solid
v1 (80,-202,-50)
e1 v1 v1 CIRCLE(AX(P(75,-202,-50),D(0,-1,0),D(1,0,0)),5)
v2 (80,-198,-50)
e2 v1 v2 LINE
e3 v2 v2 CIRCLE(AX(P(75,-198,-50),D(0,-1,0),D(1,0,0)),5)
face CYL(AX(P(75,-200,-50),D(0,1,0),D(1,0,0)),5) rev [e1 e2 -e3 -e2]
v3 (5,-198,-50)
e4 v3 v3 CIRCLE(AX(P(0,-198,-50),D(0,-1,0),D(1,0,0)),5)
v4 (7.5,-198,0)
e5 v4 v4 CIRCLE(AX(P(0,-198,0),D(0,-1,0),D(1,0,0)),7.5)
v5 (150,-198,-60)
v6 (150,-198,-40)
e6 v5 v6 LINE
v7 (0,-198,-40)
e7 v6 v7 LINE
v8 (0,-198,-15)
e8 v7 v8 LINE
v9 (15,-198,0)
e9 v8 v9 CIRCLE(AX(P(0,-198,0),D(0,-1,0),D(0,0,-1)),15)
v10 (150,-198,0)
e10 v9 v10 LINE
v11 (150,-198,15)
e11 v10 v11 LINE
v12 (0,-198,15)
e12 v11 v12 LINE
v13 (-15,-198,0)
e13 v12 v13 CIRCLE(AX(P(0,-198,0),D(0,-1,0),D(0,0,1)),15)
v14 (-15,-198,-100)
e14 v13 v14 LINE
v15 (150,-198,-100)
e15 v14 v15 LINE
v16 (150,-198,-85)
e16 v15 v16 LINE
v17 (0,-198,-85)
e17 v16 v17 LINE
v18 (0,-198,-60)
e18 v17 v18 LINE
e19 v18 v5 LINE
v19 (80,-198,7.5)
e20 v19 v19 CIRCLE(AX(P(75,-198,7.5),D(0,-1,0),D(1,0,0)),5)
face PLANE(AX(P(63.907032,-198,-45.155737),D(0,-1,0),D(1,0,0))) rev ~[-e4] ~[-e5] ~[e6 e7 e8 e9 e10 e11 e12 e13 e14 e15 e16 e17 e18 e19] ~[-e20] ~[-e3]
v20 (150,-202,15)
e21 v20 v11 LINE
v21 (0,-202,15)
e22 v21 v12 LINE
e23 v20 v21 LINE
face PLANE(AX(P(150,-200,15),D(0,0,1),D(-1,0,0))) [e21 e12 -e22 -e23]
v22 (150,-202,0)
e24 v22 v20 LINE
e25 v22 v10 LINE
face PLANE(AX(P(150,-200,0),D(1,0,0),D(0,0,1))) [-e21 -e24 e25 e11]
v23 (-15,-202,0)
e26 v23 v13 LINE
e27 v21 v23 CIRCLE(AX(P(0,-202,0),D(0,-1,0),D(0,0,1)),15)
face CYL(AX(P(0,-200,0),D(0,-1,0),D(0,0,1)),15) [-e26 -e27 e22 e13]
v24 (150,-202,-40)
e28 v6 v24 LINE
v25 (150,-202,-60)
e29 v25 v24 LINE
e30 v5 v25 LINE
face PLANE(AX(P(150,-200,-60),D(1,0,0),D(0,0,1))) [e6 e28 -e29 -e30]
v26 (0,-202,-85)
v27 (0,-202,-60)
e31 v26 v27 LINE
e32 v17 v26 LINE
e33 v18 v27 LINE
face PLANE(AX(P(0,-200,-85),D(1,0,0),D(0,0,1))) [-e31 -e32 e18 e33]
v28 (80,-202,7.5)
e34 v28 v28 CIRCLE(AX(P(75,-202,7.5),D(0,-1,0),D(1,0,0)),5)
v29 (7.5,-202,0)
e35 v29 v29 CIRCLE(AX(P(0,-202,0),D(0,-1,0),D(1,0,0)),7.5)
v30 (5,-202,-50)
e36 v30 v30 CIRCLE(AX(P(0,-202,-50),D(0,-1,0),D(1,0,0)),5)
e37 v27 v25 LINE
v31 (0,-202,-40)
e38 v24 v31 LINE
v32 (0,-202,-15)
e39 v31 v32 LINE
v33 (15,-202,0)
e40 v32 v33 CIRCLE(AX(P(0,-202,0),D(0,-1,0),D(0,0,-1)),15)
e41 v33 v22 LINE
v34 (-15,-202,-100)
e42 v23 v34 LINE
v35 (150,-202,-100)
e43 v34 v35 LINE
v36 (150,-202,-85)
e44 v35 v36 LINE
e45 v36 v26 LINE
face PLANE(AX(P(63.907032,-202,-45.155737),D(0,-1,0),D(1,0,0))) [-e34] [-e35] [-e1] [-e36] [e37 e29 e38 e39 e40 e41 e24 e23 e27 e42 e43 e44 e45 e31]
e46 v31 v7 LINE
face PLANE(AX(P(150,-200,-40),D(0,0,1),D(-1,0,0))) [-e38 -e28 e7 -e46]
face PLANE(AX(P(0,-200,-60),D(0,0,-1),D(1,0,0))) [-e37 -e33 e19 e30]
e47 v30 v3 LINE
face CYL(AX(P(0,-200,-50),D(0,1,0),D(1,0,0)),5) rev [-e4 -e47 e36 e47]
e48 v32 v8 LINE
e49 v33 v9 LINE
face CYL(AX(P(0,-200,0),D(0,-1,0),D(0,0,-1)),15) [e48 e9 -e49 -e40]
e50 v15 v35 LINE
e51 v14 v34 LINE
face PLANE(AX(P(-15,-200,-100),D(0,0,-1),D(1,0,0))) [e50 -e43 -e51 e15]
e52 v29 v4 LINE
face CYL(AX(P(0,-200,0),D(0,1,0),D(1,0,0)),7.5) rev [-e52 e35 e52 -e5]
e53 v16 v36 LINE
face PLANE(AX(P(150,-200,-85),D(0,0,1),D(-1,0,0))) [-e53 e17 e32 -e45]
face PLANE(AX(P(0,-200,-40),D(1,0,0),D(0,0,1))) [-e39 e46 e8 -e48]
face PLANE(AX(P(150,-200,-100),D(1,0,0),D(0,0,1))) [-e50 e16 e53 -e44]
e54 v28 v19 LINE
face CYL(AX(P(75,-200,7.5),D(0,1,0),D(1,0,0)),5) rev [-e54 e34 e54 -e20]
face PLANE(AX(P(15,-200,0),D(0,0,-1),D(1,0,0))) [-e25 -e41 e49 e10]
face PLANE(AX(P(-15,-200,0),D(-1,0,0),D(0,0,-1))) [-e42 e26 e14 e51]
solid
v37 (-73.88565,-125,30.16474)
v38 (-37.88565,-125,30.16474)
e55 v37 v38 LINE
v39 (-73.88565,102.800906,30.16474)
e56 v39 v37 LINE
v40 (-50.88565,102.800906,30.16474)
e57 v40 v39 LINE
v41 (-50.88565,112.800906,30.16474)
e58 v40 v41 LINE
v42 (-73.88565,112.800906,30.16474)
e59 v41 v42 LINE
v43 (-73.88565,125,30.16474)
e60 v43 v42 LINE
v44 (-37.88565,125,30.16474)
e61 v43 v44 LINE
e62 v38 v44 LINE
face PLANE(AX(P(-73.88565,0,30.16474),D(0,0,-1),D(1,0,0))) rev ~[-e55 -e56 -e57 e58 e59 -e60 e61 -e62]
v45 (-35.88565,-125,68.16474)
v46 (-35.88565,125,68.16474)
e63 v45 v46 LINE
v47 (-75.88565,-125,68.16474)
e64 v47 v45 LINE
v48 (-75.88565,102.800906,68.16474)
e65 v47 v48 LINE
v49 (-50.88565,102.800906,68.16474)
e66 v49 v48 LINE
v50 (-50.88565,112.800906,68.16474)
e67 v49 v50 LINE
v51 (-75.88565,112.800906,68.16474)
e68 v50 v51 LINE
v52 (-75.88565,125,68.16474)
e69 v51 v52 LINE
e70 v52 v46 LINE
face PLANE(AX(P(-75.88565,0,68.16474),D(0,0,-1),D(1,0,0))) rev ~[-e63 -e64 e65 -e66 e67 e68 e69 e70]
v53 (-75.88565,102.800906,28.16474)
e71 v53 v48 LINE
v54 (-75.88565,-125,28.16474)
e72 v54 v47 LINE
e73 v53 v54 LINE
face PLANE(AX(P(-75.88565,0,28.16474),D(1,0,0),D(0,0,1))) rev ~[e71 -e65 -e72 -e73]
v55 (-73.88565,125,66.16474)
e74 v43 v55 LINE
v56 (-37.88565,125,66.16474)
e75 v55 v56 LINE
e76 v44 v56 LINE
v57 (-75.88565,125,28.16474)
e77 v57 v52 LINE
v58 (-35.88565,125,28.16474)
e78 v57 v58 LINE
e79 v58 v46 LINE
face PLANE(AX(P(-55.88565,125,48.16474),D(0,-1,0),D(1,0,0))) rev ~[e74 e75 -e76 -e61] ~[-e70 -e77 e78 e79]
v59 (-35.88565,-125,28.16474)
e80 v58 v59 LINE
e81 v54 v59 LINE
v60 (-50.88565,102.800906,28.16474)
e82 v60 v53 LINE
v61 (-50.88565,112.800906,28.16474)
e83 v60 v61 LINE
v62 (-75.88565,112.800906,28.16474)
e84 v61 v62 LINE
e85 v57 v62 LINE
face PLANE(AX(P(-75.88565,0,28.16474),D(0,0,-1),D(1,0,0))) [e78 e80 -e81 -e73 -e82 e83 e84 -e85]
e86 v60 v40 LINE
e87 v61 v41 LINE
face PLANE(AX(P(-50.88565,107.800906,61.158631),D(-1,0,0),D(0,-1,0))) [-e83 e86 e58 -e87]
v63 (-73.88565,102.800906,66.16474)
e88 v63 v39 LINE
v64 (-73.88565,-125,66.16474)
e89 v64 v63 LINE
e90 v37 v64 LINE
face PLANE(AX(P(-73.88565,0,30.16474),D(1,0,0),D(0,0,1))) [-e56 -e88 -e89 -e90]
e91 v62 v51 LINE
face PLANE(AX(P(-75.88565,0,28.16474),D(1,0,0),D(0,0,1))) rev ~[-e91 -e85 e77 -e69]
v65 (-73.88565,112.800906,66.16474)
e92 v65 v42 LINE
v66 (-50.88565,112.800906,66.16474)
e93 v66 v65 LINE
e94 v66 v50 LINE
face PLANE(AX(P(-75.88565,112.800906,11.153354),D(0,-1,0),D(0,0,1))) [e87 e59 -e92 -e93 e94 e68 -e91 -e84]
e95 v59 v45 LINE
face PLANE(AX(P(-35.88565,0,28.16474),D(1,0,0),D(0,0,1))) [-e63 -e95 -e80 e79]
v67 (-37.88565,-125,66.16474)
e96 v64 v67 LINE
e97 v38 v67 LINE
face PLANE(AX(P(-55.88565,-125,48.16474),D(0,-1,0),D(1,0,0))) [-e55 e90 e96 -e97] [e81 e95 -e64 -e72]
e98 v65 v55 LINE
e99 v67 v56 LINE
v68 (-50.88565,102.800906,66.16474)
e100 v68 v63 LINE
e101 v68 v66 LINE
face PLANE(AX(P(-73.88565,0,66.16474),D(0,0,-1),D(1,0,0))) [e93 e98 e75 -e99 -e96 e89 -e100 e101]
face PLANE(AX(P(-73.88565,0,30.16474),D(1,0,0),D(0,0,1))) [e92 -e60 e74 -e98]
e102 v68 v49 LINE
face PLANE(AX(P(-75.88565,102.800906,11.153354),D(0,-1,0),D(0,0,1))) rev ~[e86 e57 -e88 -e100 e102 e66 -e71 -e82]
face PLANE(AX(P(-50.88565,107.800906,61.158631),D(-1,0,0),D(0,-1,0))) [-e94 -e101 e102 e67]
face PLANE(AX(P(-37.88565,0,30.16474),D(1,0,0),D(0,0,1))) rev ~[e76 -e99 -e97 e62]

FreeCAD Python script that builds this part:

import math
import FreeCAD as App
import Part
import Sketcher
from FreeCAD import Vector
Q = App.Units.Quantity


def add_polygon(sketch, points):
    """Adds a closed chain of lines whose ends are joined by coincident constraints."""
    first, n = sketch.GeometryCount, len(points)
    for a, b in zip(points, points[1:] + points[:1]):
        sketch.addGeometry(Part.LineSegment(App.Vector(*a, 0), App.Vector(*b, 0)), False)
    for i in range(n):
        sketch.addConstraint(Sketcher.Constraint("Coincident", first + i, 2, first + (i + 1) % n, 1))

doc = App.newDocument("Part")
params = doc.addObject("Spreadsheet::Sheet", "Params")
for row, (alias, value) in enumerate([
    ("sketch1_diameter", "10 mm"),
    ("sketch1_diameter2", "15 mm"),
    ("sketch1_radius", "15 mm"),
    ("sketch1_width", "165 mm"),
    ("sketch1_height", "100 mm"),
    ("pad1_length", "4 mm"),
    ("sketch2_width", "40 mm"),
    ("sketch2_width2", "36 mm"),
    ("pad2_length", "250 mm"),
    ("sketch3_width", "10 mm"),
    ("pocket1_length", "25 mm"),
], start=1):
    params.set(f"A{row}", alias)
    params.set(f"B{row}", "=" + value)
    params.setAlias(f"B{row}", alias)

body = doc.addObject("PartDesign::Body", "Body")

sketch1 = doc.addObject("Sketcher::SketchObject", "Sketch")
body.addObject(sketch1)
sketch1.AttachmentSupport = (doc.XZ_Plane, [""])
sketch1.MapMode = "FlatFace"
sketch1.AttachmentOffset = App.Placement(Vector(0, 0, 200), App.Rotation())
sketch1.addGeometry([
    Part.LineSegment(Vector(-15, 0, 0), Vector(-15, -100, 0)),
    Part.LineSegment(Vector(-15, -100, 0), Vector(150, -100, 0)),
    Part.LineSegment(Vector(150, -100, 0), Vector(150, -85, 0)),
    Part.LineSegment(Vector(150, -85, 0), Vector(0, -85, 0)),
    Part.LineSegment(Vector(0, -85, 0), Vector(0, -60, 0)),
    Part.LineSegment(Vector(0, -60, 0), Vector(150, -60, 0)),
    Part.LineSegment(Vector(150, -60, 0), Vector(150, -40, 0)),
    Part.LineSegment(Vector(150, -40, 0), Vector(0, -40, 0)),
    Part.LineSegment(Vector(0, -40, 0), Vector(0, -15, 0)),
    Part.ArcOfCircle(Part.Circle(Vector(0, 0, 0), Vector(0, 0, 1), 15), math.radians(-90), math.radians(0)),
    Part.LineSegment(Vector(15, 0, 0), Vector(150, 0, 0)),
    Part.LineSegment(Vector(150, 0, 0), Vector(150, 15, 0)),
    Part.LineSegment(Vector(150, 15, 0), Vector(0, 15, 0)),
    Part.ArcOfCircle(Part.Circle(Vector(0, 0, 0), Vector(0, 0, 1), 15), math.radians(90), math.radians(180)),
    Part.Circle(Vector(0, -50, 0), Vector(0, 0, 1), 5),
    Part.Circle(Vector(75, -50, 0), Vector(0, 0, 1), 5),
    Part.Circle(Vector(0, 0, 0), Vector(0, 0, 1), 8),
    Part.Circle(Vector(75, 8, 0), Vector(0, 0, 1), 5),
], False)
sketch1.addConstraint([
    Sketcher.Constraint("Coincident", 0, 2, 1, 1),
    Sketcher.Constraint("Coincident", 1, 2, 2, 1),
    Sketcher.Constraint("Coincident", 2, 2, 3, 1),
    Sketcher.Constraint("Coincident", 3, 2, 4, 1),
    Sketcher.Constraint("Coincident", 4, 2, 5, 1),
    Sketcher.Constraint("Coincident", 5, 2, 6, 1),
    Sketcher.Constraint("Coincident", 6, 2, 7, 1),
    Sketcher.Constraint("Coincident", 7, 2, 8, 1),
    Sketcher.Constraint("Coincident", 8, 2, 9, 1),
    Sketcher.Constraint("Coincident", 9, 2, 10, 1),
    Sketcher.Constraint("Coincident", 10, 2, 11, 1),
    Sketcher.Constraint("Coincident", 11, 2, 12, 1),
    Sketcher.Constraint("Tangent", 12, 2, 13, 1),
    Sketcher.Constraint("Tangent", 13, 2, 0, 1),
    Sketcher.Constraint("Vertical", 0),
    Sketcher.Constraint("Horizontal", 1),
    Sketcher.Constraint("Vertical", 2),
    Sketcher.Constraint("Horizontal", 3),
    Sketcher.Constraint("Vertical", 4),
    Sketcher.Constraint("Horizontal", 5),
    Sketcher.Constraint("Vertical", 6),
    Sketcher.Constraint("Horizontal", 7),
    Sketcher.Constraint("Vertical", 8),
    Sketcher.Constraint("Horizontal", 10),
    Sketcher.Constraint("Vertical", 11),
    Sketcher.Constraint("Horizontal", 12),
    Sketcher.Constraint("Coincident", 9, 3, -1, 1),
    Sketcher.Constraint("Coincident", 13, 3, -1, 1),
    Sketcher.Constraint("Coincident", 16, 3, -1, 1),
    Sketcher.Constraint("Equal", 9, 13),
    Sketcher.Constraint("Equal", 14, 15),
    Sketcher.Constraint("Equal", 15, 17),
    Sketcher.Constraint("PointOnObject", 14, 3, -2),
    Sketcher.Constraint("PointOnObject", 3, 2, -2),
    Sketcher.Constraint("PointOnObject", 7, 2, -2),
    Sketcher.Constraint("PointOnObject", 9, 2, -1),
    Sketcher.Constraint("Horizontal", 14, 3, 15, 3),
    Sketcher.Constraint("Vertical", 15, 3, 17, 3),
    Sketcher.Constraint("Vertical", 2, 2, 5, 2),
    Sketcher.Constraint("Vertical", 6, 2, 10, 2),
    Sketcher.Constraint("Equal", 4, 8),
    Sketcher.Constraint("Equal", 2, 11),
    Sketcher.Constraint("Diameter", 14, Q("10 mm")),
    Sketcher.Constraint("Diameter", 16, Q("15 mm")),
    Sketcher.Constraint("Radius", 9, Q("15 mm")),
    Sketcher.Constraint("DistanceX", 1, 1, 1, 2, Q("165 mm")),
    Sketcher.Constraint("DistanceY", 0, 2, 0, 1, Q("100 mm")),
    Sketcher.Constraint("DistanceY", 4, 1, 4, 2, Q("25 mm")),
    Sketcher.Constraint("DistanceY", 14, 3, -1, 1, Q("50 mm")),
    Sketcher.Constraint("DistanceX", -1, 1, 15, 3, Q("75 mm")),
    Sketcher.Constraint("DistanceY", -1, 1, 17, 3, Q("7.5 mm")),
])
sketch1.setExpression("Constraints[42]", "Params.sketch1_diameter")
sketch1.setExpression("Constraints[43]", "Params.sketch1_diameter2")
sketch1.setExpression("Constraints[44]", "Params.sketch1_radius")
sketch1.setExpression("Constraints[45]", "Params.sketch1_width")
sketch1.setExpression("Constraints[46]", "Params.sketch1_height")
pad1 = doc.addObject("PartDesign::Pad", "Pad")
body.addObject(pad1)
pad1.Profile = sketch1
pad1.setExpression("Length", "Params.pad1_length")
pad1.Midplane = True
body2 = doc.addObject("PartDesign::Body", "Body001")

sketch2 = doc.addObject("Sketcher::SketchObject", "Sketch001")
body2.addObject(sketch2)
sketch2.AttachmentSupport = (doc.getObject("XZ_Plane001"), [""])
sketch2.MapMode = "FlatFace"
add_polygon(sketch2, [(-76, 68), (-76, 28), (-36, 28), (-36, 68)])
add_polygon(sketch2, [(-38, 30), (-74, 30), (-74, 66), (-38, 66)])
sketch2.addConstraint([
    Sketcher.Constraint("Vertical", 0),
    Sketcher.Constraint("Horizontal", 1),
    Sketcher.Constraint("Vertical", 2),
    Sketcher.Constraint("Horizontal", 3),
    Sketcher.Constraint("Horizontal", 4),
    Sketcher.Constraint("Vertical", 5),
    Sketcher.Constraint("Horizontal", 6),
    Sketcher.Constraint("Vertical", 7),
    Sketcher.Constraint("Equal", 3, 0),
    Sketcher.Constraint("Equal", 6, 5),
    Sketcher.Constraint("DistanceX", 1, 1, 1, 2, Q("40 mm")),
    Sketcher.Constraint("DistanceX", 4, 2, 4, 1, Q("36 mm")),
    Sketcher.Constraint("DistanceX", 0, 2, 4, 2, Q("2 mm")),
    Sketcher.Constraint("DistanceY", 0, 2, 4, 2, Q("2 mm")),
    Sketcher.Constraint("DistanceX", 0, 2, -1, 1, Q("75.88565 mm")),
    Sketcher.Constraint("DistanceY", -1, 1, 0, 2, Q("28.16474 mm")),
])
sketch2.setExpression("Constraints[18]", "Params.sketch2_width")
sketch2.setExpression("Constraints[19]", "Params.sketch2_width2")
pad2 = doc.addObject("PartDesign::Pad", "Pad001")
body2.addObject(pad2)
pad2.Profile = sketch2
pad2.setExpression("Length", "Params.pad2_length")
pad2.Midplane = True

sketch3 = doc.addObject("Sketcher::SketchObject", "Sketch002")
body2.addObject(sketch3)
sketch3.AttachmentSupport = (doc.getObject("YZ_Plane001"), [""])
sketch3.MapMode = "FlatFace"
sketch3.AttachmentOffset = App.Placement(Vector(0, 0, -75.88565), App.Rotation())
add_polygon(sketch3, [(113, 111), (113, 11), (103, 11), (103, 111)])
sketch3.addConstraint([
    Sketcher.Constraint("Vertical", 0),
    Sketcher.Constraint("Horizontal", 1),
    Sketcher.Constraint("Vertical", 2),
    Sketcher.Constraint("Horizontal", 3),
    Sketcher.Constraint("DistanceX", 1, 2, 1, 1, Q("10 mm")),
    Sketcher.Constraint("DistanceY", 0, 2, 0, 1, Q("100.010552 mm")),
    Sketcher.Constraint("DistanceX", -1, 1, 0, 2, Q("112.800906 mm")),
    Sketcher.Constraint("DistanceY", -1, 1, 0, 2, Q("11.153354 mm")),
])
sketch3.setExpression("Constraints[8]", "Params.sketch3_width")
pocket1 = doc.addObject("PartDesign::Pocket", "Pocket")
body2.addObject(pocket1)
pocket1.Profile = sketch3
pocket1.setExpression("Length", "Params.pocket1_length")
pocket1.Reversed = True

doc.recompute()
